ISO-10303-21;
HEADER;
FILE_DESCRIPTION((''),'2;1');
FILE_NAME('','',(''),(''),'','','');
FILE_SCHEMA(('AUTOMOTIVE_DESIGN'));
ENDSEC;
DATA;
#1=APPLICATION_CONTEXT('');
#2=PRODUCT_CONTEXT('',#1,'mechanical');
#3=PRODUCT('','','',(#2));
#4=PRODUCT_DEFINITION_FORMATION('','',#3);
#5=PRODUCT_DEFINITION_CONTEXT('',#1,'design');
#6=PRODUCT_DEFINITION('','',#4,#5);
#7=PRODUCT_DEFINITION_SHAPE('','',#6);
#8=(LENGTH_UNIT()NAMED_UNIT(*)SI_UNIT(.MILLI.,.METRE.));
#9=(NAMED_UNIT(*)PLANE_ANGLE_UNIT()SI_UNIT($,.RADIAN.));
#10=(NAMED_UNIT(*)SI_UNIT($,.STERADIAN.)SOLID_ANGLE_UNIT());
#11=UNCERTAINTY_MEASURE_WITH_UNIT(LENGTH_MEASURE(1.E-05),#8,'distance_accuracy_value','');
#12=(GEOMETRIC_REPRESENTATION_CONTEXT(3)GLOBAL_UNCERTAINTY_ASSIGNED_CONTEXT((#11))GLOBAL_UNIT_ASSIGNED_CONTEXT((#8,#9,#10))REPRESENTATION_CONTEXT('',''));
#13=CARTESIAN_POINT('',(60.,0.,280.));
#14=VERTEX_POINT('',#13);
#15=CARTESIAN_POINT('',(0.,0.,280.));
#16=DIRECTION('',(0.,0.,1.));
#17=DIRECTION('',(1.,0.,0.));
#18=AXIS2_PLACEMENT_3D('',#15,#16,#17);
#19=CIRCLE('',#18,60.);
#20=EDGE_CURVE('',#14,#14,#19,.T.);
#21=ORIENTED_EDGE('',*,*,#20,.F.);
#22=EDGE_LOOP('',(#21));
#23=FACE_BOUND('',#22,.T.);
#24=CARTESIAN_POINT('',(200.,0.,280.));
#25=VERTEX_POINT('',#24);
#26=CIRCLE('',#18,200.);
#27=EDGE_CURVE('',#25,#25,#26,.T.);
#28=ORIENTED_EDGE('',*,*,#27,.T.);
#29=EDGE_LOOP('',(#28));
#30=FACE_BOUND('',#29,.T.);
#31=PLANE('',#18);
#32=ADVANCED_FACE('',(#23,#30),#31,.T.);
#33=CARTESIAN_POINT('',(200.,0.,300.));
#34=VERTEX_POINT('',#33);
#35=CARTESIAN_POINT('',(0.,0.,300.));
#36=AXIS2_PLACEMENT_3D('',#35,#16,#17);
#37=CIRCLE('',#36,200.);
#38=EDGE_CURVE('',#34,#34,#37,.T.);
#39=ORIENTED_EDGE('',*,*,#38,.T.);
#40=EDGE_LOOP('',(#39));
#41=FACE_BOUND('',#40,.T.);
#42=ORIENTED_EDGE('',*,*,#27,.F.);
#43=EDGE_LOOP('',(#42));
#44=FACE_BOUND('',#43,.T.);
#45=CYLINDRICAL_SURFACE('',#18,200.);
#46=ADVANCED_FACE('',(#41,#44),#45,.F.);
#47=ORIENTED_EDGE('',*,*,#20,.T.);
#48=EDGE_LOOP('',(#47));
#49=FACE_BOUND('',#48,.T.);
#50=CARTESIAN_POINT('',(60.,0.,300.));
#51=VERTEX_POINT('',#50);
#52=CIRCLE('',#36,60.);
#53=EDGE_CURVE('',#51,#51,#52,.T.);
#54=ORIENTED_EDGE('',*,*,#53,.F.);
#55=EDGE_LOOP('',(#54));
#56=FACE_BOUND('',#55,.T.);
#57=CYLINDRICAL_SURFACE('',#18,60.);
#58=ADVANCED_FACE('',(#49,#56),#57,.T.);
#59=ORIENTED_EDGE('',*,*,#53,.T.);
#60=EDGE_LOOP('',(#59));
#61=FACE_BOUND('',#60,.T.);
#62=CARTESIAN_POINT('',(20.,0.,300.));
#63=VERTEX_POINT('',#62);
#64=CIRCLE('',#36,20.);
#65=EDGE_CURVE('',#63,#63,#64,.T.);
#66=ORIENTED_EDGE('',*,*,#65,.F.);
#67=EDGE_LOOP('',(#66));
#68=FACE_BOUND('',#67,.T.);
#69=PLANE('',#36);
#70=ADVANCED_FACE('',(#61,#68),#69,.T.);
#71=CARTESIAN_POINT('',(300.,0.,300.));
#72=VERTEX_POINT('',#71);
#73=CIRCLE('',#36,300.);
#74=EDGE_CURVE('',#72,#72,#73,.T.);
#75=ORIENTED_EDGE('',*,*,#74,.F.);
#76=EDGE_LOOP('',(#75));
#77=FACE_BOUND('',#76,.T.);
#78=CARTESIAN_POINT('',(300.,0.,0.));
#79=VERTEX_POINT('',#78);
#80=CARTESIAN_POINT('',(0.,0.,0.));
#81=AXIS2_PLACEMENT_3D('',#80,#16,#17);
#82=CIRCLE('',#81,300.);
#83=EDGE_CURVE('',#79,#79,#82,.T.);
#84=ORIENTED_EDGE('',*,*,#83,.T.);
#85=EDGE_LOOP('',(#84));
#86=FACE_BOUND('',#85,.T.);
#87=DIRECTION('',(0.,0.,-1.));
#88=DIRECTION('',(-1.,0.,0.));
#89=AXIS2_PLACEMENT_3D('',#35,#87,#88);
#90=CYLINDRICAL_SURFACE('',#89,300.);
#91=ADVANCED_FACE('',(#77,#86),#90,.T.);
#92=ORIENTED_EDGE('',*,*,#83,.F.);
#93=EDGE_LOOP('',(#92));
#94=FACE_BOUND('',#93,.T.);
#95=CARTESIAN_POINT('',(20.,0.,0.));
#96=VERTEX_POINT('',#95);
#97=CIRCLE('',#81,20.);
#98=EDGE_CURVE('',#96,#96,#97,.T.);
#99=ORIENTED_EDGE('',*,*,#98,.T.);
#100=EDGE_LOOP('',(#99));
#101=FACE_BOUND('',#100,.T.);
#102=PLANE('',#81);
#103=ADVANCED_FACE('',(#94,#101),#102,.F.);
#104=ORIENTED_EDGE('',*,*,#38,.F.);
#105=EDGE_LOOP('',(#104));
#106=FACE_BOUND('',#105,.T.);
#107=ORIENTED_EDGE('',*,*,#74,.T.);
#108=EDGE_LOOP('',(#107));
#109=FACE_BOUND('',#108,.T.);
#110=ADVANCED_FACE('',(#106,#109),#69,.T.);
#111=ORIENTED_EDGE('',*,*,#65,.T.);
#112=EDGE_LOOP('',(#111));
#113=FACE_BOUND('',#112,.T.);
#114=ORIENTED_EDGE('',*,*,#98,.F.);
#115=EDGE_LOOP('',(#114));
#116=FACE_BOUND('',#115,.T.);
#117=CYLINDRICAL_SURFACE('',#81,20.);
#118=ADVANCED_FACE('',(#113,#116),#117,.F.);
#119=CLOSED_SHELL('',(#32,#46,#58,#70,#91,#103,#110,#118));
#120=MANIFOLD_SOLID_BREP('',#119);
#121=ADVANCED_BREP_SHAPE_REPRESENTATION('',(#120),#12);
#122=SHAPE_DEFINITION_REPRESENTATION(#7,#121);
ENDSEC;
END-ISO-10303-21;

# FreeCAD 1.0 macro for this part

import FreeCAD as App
import Part
import Sketcher
from FreeCAD import Vector

doc = App.newDocument("Part")
params = doc.addObject("Spreadsheet::Sheet", "Params")
for row, (alias, value) in enumerate([
    ("sketch1_diameter", "600 mm"),
    ("pad1_length", "300 mm"),
    ("sketch2_diameter", "40 mm"),
    ("pocket1_length", "300 mm"),
    ("sketch3_diameter", "400 mm"),
    ("sketch3_diameter2", "120 mm"),
    ("pocket2_length", "20 mm"),
], start=1):
    params.set(f"A{row}", alias)
    params.set(f"B{row}", "=" + value)
    params.setAlias(f"B{row}", alias)

body = doc.addObject("PartDesign::Body", "Body")

# Sketch on XY plane
sketch1 = body.newObject("Sketcher::SketchObject", "Sketch")
sketch1.AttachmentSupport = (doc.getObject("XY_Plane"), [""])
sketch1.MapMode = "FlatFace"
sketch1.addGeometry(Part.Circle(Vector(0, 0, 0), Vector(0, 0, 1), 300), False)
sketch1.addConstraint([
    Sketcher.Constraint("Coincident", 0, 3, -1, 1),
    Sketcher.Constraint("Diameter", 0, 600.0),
])
sketch1.setExpression("Constraints[1]", "Params.sketch1_diameter")
pad1 = body.newObject("PartDesign::Pad", "Pad")
pad1.Profile = sketch1
pad1.setExpression("Length", "Params.pad1_length")

# Sketch on XY plane
sketch2 = body.newObject("Sketcher::SketchObject", "Sketch001")
sketch2.AttachmentSupport = (doc.getObject("XY_Plane"), [""])
sketch2.MapMode = "FlatFace"
sketch2.AttachmentOffset = App.Placement(Vector(0, 0, 300), App.Rotation())
sketch2.addGeometry(Part.Circle(Vector(0, 0, 0), Vector(0, 0, 1), 20), False)
sketch2.addConstraint([
    Sketcher.Constraint("Coincident", 0, 3, -1, 1),
    Sketcher.Constraint("Diameter", 0, 40.0),
])
sketch2.setExpression("Constraints[1]", "Params.sketch2_diameter")
pocket1 = body.newObject("PartDesign::Pocket", "Pocket")
pocket1.Profile = sketch2
pocket1.setExpression("Length", "Params.pocket1_length")

# Sketch on XY plane
sketch3 = body.newObject("Sketcher::SketchObject", "Sketch002")
sketch3.AttachmentSupport = (doc.getObject("XY_Plane"), [""])
sketch3.MapMode = "FlatFace"
sketch3.AttachmentOffset = App.Placement(Vector(0, 0, 300), App.Rotation())
sketch3.addGeometry([
    Part.Circle(Vector(0, 0, 0), Vector(0, 0, 1), 200),
    Part.Circle(Vector(0, 0, 0), Vector(0, 0, 1), 60),
], False)
sketch3.addConstraint([
    Sketcher.Constraint("Coincident", 0, 3, -1, 1),
    Sketcher.Constraint("Coincident", 1, 3, -1, 1),
    Sketcher.Constraint("Diameter", 0, 400.0),
    Sketcher.Constraint("Diameter", 1, 120.0),
])
sketch3.setExpression("Constraints[2]", "Params.sketch3_diameter")
sketch3.setExpression("Constraints[3]", "Params.sketch3_diameter2")
pocket2 = body.newObject("PartDesign::Pocket", "Pocket001")
pocket2.Profile = sketch3
pocket2.setExpression("Length", "Params.pocket2_length")

doc.recompute()
